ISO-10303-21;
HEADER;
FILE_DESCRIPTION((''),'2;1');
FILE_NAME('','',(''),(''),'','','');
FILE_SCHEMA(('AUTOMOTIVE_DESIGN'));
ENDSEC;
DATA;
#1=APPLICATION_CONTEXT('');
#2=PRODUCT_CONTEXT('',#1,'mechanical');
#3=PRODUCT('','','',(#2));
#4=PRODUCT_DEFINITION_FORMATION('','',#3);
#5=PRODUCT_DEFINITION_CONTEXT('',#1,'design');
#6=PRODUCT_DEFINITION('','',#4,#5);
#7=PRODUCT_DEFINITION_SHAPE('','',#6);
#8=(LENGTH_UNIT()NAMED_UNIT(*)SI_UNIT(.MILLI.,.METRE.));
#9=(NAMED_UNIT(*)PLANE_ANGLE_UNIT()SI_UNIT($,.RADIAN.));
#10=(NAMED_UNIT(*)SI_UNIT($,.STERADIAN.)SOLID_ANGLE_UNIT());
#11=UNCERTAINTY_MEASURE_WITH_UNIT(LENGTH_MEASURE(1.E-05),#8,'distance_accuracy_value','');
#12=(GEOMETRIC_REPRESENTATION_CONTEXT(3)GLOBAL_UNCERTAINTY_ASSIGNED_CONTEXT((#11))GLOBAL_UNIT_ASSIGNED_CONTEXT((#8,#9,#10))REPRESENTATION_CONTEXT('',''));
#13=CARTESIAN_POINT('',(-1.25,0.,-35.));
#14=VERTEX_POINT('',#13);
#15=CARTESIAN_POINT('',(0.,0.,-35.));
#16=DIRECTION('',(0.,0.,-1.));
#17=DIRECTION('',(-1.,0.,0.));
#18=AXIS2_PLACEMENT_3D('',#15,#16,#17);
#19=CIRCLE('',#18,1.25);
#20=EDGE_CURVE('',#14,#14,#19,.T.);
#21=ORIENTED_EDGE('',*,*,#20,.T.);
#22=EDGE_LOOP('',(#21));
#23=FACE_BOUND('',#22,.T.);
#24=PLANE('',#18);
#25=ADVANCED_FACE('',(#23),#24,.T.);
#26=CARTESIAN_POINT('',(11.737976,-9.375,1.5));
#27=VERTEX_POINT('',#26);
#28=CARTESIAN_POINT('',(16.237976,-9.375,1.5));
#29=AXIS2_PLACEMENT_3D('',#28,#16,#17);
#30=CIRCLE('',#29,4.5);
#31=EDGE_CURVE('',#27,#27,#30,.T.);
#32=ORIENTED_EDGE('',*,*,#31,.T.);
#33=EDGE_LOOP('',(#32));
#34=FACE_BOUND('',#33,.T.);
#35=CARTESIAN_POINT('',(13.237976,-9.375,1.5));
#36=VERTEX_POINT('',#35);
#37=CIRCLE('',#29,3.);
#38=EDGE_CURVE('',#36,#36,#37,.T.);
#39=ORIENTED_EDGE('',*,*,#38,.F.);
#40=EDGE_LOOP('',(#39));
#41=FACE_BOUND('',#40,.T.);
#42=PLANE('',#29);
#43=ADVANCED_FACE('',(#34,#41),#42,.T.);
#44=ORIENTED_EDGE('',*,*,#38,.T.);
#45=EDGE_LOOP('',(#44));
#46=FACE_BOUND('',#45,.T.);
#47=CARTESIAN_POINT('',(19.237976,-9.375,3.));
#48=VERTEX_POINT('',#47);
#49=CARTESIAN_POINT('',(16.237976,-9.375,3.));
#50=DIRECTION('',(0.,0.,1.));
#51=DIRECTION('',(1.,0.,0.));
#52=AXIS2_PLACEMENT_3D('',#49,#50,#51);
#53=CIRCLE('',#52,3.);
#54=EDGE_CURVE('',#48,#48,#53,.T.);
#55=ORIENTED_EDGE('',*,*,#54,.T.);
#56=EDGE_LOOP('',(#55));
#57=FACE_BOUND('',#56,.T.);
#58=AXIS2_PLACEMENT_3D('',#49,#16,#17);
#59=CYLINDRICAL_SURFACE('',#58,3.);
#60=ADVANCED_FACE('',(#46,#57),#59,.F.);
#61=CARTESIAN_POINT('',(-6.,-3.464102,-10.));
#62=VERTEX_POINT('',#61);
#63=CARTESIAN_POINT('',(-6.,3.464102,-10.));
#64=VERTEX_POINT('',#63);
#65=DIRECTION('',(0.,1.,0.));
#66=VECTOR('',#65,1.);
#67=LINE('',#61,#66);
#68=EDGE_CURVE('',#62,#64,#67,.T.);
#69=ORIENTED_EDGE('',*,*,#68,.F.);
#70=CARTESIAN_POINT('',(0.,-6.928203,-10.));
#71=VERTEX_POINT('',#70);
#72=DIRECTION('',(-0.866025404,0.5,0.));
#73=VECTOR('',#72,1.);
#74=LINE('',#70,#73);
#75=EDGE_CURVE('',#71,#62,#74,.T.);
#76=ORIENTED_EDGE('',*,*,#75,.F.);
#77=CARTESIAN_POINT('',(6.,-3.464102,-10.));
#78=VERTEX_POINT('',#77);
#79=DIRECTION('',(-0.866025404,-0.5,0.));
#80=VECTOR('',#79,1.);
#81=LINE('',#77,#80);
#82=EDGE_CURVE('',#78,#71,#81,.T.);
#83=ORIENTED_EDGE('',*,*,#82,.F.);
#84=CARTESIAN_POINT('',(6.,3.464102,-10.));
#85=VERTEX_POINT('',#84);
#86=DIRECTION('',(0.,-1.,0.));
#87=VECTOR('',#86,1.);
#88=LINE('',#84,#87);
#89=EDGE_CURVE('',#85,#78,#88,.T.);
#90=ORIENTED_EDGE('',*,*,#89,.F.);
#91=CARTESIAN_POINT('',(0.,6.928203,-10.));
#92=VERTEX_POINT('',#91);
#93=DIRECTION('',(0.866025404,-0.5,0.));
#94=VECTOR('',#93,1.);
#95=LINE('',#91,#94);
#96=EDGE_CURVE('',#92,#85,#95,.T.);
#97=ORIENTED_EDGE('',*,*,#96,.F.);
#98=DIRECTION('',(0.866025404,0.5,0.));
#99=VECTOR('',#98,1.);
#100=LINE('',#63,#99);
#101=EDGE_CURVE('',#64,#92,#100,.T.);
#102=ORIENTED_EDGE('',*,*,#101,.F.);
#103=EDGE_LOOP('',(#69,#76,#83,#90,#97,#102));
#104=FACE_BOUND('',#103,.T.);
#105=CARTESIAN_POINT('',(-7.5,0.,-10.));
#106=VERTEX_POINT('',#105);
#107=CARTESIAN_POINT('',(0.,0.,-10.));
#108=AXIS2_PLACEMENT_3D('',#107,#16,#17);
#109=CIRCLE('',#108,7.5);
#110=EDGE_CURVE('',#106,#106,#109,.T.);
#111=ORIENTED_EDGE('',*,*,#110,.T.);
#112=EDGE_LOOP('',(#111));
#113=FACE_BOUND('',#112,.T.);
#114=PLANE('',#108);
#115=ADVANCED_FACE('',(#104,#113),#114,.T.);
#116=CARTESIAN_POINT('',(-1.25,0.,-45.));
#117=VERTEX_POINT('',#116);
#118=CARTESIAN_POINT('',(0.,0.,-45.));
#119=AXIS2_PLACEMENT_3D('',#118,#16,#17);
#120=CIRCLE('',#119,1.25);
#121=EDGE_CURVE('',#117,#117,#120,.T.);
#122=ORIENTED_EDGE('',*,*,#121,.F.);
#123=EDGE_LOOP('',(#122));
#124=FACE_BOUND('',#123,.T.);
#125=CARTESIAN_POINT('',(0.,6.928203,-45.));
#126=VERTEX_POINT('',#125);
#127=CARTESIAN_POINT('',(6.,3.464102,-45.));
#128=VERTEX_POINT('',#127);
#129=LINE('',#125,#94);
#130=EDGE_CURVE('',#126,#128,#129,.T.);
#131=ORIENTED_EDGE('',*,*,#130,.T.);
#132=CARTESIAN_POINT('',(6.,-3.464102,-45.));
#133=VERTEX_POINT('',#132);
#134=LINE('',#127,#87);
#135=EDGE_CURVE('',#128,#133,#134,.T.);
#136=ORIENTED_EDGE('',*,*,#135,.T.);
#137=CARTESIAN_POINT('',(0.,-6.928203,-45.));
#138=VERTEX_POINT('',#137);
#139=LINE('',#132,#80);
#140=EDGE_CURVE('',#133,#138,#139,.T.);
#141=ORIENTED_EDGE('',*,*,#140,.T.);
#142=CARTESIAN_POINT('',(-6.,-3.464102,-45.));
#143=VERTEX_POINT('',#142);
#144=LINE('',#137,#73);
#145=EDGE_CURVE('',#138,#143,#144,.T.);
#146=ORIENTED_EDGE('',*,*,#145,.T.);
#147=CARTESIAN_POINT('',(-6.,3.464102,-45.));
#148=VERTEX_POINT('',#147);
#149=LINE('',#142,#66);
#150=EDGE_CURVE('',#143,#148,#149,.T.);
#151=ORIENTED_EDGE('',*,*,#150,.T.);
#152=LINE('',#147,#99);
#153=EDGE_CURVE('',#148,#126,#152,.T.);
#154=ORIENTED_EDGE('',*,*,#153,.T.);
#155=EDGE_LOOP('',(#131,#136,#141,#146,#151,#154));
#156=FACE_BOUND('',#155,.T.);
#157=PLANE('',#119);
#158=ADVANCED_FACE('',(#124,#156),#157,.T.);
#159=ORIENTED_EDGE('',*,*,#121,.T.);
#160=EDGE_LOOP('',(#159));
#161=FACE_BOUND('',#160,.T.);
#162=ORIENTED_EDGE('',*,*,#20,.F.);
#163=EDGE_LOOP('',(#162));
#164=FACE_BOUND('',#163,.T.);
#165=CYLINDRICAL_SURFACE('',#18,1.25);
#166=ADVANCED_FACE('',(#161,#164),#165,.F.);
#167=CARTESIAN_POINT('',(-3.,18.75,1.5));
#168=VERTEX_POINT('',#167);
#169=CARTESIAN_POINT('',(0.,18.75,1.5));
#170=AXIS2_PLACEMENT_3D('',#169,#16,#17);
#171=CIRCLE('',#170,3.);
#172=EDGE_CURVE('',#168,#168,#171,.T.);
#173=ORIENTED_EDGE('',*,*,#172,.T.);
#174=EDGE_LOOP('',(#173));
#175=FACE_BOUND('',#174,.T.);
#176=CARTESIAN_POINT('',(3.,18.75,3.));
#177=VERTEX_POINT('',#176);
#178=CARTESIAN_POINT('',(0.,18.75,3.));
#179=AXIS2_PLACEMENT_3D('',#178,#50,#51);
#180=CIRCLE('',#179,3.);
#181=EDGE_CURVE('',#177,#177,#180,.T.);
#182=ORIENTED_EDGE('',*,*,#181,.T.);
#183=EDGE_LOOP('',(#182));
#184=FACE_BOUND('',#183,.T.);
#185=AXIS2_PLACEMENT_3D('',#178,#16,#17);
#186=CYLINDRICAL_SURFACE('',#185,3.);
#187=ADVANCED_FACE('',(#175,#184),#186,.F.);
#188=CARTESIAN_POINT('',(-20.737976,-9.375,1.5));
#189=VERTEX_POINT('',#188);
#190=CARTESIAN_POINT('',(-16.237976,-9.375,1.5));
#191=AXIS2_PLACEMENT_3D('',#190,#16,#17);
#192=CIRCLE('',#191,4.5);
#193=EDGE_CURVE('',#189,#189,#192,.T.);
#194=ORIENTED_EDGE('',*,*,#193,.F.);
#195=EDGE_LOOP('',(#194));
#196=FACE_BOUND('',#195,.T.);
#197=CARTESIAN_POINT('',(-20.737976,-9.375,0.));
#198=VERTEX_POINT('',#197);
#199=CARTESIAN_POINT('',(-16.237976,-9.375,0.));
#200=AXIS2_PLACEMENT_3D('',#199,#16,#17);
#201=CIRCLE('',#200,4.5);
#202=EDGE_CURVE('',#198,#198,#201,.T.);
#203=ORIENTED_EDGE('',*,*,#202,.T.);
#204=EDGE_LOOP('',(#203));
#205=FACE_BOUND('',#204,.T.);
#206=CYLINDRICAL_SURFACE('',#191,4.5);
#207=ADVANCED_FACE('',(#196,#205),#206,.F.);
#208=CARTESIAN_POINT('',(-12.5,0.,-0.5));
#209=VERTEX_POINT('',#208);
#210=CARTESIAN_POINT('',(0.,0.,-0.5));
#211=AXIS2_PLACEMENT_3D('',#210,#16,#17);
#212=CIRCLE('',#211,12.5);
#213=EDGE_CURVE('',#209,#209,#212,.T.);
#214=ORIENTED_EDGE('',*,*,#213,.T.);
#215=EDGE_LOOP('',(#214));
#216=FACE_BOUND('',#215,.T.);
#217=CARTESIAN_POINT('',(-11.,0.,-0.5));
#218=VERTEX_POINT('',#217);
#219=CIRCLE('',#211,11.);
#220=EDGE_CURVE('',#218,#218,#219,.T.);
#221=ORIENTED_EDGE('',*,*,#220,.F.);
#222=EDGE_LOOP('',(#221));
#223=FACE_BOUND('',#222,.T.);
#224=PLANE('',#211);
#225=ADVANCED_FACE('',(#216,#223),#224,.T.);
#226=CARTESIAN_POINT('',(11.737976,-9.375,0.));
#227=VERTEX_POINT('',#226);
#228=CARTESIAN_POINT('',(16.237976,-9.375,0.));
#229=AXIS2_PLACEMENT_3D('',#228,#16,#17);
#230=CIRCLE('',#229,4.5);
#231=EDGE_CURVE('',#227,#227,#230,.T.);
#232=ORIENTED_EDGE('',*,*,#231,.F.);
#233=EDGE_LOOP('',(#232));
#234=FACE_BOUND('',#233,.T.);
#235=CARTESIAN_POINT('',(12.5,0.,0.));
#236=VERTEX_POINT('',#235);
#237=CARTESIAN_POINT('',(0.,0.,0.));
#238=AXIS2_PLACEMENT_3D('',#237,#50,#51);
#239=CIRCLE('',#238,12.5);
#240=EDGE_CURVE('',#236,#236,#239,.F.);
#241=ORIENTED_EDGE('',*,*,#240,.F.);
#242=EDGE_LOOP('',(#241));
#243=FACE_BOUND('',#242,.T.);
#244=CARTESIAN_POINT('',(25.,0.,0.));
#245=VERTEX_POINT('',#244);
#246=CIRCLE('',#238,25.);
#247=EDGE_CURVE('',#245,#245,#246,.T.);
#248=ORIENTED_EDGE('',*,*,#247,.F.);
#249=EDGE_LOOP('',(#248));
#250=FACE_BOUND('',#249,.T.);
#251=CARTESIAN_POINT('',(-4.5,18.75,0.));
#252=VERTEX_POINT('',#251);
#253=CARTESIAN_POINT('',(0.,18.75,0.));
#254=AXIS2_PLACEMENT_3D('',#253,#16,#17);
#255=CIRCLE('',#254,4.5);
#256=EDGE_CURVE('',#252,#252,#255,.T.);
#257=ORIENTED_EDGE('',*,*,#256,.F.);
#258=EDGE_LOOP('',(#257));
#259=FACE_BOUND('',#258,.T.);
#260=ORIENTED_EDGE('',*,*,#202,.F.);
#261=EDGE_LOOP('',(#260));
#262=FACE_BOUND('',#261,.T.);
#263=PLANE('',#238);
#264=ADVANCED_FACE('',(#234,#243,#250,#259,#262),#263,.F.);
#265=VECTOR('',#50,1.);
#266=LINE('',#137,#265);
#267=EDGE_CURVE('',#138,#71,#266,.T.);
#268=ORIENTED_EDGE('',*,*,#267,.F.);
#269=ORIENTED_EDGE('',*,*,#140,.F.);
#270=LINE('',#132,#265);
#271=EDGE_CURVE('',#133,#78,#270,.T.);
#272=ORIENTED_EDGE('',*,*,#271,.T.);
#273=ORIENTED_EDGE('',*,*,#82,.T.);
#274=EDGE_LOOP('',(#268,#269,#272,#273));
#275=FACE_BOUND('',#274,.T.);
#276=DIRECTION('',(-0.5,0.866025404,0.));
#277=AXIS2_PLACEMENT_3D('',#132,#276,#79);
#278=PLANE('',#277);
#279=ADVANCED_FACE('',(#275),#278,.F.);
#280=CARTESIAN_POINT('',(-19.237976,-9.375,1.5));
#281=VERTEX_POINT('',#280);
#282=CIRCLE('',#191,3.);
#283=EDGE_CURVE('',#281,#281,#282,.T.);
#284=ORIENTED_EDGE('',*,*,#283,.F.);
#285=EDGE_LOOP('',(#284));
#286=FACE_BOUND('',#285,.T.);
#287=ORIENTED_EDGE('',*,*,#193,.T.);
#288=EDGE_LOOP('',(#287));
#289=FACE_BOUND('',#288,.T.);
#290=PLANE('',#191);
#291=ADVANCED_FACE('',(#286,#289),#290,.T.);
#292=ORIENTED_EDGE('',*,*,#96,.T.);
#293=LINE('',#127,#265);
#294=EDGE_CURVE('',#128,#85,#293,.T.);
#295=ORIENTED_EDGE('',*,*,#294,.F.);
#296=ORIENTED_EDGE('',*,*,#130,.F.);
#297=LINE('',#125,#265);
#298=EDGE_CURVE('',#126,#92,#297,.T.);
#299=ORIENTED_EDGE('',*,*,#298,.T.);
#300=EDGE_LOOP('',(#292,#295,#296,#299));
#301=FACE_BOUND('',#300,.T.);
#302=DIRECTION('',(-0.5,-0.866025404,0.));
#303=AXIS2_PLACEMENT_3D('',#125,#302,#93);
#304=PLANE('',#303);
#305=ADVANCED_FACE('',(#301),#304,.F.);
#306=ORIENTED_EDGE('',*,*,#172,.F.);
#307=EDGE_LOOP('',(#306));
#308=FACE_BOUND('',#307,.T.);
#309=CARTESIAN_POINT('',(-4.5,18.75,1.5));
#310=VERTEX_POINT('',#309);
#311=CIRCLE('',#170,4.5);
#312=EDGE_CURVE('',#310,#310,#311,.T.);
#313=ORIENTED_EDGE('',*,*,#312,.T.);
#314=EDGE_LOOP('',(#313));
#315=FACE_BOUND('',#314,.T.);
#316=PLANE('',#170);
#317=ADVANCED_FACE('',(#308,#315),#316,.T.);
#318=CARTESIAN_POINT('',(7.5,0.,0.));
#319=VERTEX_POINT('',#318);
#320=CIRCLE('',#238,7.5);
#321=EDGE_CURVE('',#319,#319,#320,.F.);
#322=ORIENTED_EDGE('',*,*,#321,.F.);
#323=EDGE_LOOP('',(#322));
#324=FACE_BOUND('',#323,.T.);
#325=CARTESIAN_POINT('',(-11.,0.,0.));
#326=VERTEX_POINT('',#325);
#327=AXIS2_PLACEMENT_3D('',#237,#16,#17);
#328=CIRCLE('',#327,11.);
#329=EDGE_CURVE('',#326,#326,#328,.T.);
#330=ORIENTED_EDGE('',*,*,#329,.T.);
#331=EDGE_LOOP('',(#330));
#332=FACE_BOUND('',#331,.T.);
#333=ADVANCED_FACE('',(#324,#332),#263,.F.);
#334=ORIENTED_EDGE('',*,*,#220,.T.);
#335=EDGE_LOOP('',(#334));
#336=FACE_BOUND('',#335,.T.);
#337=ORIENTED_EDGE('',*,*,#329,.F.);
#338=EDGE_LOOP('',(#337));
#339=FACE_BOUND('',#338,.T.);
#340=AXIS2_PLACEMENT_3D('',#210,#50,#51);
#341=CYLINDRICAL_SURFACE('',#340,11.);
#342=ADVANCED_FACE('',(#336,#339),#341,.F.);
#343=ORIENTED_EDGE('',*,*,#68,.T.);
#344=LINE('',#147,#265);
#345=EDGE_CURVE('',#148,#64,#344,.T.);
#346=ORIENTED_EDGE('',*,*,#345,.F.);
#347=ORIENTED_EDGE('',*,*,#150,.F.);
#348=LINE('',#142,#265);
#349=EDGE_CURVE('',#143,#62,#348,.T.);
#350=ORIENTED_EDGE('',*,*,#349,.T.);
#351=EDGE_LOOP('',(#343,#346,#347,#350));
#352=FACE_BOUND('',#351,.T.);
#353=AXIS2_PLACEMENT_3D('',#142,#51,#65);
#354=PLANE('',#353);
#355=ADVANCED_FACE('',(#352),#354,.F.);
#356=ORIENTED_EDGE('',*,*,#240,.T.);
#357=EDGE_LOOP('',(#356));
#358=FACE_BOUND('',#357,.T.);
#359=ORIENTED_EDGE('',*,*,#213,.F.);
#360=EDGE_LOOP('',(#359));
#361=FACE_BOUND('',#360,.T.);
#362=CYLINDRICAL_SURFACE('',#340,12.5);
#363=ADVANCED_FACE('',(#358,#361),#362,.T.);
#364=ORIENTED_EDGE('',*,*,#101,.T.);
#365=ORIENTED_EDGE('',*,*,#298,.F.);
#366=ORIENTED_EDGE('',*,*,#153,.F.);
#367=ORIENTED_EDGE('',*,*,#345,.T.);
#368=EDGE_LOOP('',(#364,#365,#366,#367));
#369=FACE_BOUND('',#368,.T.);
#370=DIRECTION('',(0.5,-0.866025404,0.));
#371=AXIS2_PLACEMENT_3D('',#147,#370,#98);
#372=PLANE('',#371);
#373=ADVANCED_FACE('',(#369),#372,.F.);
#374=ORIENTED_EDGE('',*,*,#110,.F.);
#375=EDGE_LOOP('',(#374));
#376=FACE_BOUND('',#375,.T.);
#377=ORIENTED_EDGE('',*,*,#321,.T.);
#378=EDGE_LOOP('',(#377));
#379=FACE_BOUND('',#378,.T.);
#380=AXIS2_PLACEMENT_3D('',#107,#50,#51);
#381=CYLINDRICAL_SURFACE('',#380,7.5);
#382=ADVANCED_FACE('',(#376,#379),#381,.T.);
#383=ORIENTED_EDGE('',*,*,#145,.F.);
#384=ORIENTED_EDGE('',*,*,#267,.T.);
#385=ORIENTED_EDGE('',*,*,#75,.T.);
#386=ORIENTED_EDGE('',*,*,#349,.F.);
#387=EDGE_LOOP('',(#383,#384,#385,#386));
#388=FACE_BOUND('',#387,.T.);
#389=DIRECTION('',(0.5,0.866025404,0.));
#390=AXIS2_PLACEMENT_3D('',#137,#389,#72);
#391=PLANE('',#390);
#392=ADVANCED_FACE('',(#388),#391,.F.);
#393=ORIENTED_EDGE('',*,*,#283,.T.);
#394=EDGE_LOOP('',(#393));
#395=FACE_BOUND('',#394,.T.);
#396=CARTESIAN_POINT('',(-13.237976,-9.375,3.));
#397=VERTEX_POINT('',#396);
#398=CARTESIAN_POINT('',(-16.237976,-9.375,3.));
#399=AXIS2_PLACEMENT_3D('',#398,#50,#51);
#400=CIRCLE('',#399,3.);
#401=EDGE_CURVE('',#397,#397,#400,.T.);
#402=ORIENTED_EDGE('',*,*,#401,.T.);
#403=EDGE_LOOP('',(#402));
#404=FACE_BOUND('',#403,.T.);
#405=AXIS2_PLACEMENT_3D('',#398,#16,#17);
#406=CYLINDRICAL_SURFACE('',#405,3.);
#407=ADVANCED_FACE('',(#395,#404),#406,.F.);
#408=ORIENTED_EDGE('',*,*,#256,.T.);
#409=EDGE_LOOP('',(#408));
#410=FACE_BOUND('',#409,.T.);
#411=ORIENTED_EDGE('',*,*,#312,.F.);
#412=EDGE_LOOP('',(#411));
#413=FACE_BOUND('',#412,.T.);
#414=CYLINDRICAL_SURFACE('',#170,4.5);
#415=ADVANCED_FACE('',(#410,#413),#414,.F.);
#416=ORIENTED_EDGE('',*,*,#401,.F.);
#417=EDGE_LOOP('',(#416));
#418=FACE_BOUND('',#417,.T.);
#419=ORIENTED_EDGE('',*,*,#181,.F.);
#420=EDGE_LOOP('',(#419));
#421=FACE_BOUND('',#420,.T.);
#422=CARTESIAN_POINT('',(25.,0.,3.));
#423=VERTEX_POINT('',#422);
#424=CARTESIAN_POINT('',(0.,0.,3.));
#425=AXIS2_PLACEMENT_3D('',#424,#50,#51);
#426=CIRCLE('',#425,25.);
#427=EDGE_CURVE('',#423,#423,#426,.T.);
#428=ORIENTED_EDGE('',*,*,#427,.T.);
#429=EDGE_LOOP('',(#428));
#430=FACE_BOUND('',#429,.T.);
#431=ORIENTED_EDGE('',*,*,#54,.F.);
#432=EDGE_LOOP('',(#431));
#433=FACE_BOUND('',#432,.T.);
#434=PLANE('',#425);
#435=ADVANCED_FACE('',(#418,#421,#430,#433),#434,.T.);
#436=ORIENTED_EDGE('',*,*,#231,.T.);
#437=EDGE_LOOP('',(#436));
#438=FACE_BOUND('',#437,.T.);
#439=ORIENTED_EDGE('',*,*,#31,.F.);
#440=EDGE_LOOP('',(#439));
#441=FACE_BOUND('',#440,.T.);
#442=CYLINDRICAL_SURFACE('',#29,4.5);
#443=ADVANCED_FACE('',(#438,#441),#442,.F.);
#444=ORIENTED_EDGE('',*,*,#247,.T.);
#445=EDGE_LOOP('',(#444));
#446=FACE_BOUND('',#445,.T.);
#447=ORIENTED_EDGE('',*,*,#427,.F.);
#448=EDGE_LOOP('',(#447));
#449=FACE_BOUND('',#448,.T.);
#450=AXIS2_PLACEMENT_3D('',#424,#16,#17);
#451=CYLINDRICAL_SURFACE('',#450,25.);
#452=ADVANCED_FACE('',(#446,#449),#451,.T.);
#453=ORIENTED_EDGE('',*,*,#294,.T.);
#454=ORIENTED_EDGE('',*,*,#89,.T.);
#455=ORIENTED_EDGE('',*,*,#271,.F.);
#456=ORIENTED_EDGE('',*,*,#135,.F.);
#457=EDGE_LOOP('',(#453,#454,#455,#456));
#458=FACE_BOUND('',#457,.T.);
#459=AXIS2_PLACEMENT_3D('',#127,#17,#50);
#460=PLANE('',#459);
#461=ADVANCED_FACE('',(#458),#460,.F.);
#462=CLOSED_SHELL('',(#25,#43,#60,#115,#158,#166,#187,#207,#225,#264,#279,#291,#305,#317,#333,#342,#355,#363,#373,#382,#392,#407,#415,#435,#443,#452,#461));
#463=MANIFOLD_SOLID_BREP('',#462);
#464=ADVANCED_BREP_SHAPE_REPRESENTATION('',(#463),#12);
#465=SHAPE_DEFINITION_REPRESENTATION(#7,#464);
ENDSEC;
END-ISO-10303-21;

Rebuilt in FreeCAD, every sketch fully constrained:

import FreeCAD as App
import Part
import Sketcher

V = App.Vector
Q = App.Units.Quantity


def add_polygon(sketch, points):
    """Adds a closed chain of lines whose ends are joined by coincident constraints."""
    first, n = sketch.GeometryCount, len(points)
    for a, b in zip(points, points[1:] + points[:1]):
        sketch.addGeometry(Part.LineSegment(App.Vector(*a, 0), App.Vector(*b, 0)), False)
    for i in range(n):
        sketch.addConstraint(Sketcher.Constraint("Coincident", first + i, 2, first + (i + 1) % n, 1))

doc = App.newDocument("Part")
body = doc.addObject("PartDesign::Body", "Body")

sketch1 = body.newObject("Sketcher::SketchObject", "Sketch")
sketch1.AttachmentSupport = (doc.getObject("XY_Plane"), [""])
sketch1.MapMode = "FlatFace"
sketch1.addGeometry([
    Part.Circle(V(0, 0, 0), V(0, 0, 1), 25),
    Part.Circle(V(-16.2, -9.4, 0), V(0, 0, 1), 3),
    Part.Circle(V(16.2, -9.4, 0), V(0, 0, 1), 3),
    Part.Circle(V(0, 18.8, 0), V(0, 0, 1), 3),
], False)
sketch1.addConstraint([
    Sketcher.Constraint("Coincident", 0, 3, -1, 1),
    Sketcher.Constraint("Equal", 1, 2),
    Sketcher.Constraint("Equal", 2, 3),
    Sketcher.Constraint("Symmetric", 1, 3, 2, 3, -2),
    Sketcher.Constraint("PointOnObject", 3, 3, -2),
    Sketcher.Constraint("Diameter", 0, Q("50 mm")),
    Sketcher.Constraint("Diameter", 1, Q("6 mm")),
    Sketcher.Constraint("DistanceY", -1, 1, 3, 3, Q("18.75 mm")),
    Sketcher.Constraint("DistanceY", 1, 3, -1, 1, Q("9.375 mm")),
    Sketcher.Constraint("DistanceX", 1, 3, -1, 1, Q("16.237976 mm")),
])
pad1 = body.newObject("PartDesign::Pad", "Pad")
pad1.Profile = sketch1
pad1.Length = 3

sketch2 = body.newObject("Sketcher::SketchObject", "Sketch001")
sketch2.AttachmentSupport = (doc.getObject("XY_Plane"), [""])
sketch2.MapMode = "FlatFace"
sketch2.addGeometry(Part.Circle(V(0, 0, 0), V(0, 0, 1), 8), False)
sketch2.addConstraint([
    Sketcher.Constraint("Coincident", 0, 3, -1, 1),
    Sketcher.Constraint("Diameter", 0, Q("15 mm")),
])
pad2 = body.newObject("PartDesign::Pad", "Pad001")
pad2.Profile = sketch2
pad2.Length = 10
pad2.Reversed = True

sketch3 = body.newObject("Sketcher::SketchObject", "Sketch002")
sketch3.AttachmentSupport = (doc.getObject("XY_Plane"), [""])
sketch3.MapMode = "FlatFace"
sketch3.AttachmentOffset = App.Placement(V(0, 0, -10), App.Rotation())
add_polygon(sketch3, [(0, -7), (-6, -3), (-6, 3), (0, 7), (6, 3), (6, -3)])
sketch3.addConstraint([
    Sketcher.Constraint("Vertical", 1),
    Sketcher.Constraint("Vertical", 4),
    Sketcher.Constraint("Symmetric", 0, 2, 3, 2, -1, 1),
    Sketcher.Constraint("Symmetric", 2, 2, 5, 2, -1, 1),
    Sketcher.Constraint("PointOnObject", 2, 2, -2),
    Sketcher.Constraint("Parallel", 2, 5),
    Sketcher.Constraint("Horizontal", 1, 2, 3, 2),
    Sketcher.Constraint("Angle", 0, Q("150 deg")),
    Sketcher.Constraint("DistanceX", 0, 2, -1, 1, Q("6 mm")),
    Sketcher.Constraint("DistanceY", 0, 2, -1, 1, Q("3.464102 mm")),
])
pad3 = body.newObject("PartDesign::Pad", "Pad002")
pad3.Profile = sketch3
pad3.Length = 35
pad3.Reversed = True

sketch4 = body.newObject("Sketcher::SketchObject", "Sketch003")
sketch4.AttachmentSupport = (doc.getObject("XY_Plane"), [""])
sketch4.MapMode = "FlatFace"
sketch4.AttachmentOffset = App.Placement(V(0, 0, -45), App.Rotation())
sketch4.addGeometry(Part.Circle(V(0, 0, 0), V(0, 0, 1), 1.2), False)
sketch4.addConstraint([
    Sketcher.Constraint("Coincident", 0, 3, -1, 1),
    Sketcher.Constraint("Diameter", 0, Q("2.5 mm")),
])
pocket1 = body.newObject("PartDesign::Pocket", "Pocket")
pocket1.Profile = sketch4
pocket1.Length = 10
pocket1.Reversed = True

sketch5 = body.newObject("Sketcher::SketchObject", "Sketch004")
sketch5.AttachmentSupport = (doc.getObject("XY_Plane"), [""])
sketch5.MapMode = "FlatFace"
sketch5.addGeometry([
    Part.Circle(V(0, 0, 0), V(0, 0, 1), 12),
    Part.Circle(V(0, 0, 0), V(0, 0, 1), 11),
], False)
sketch5.addConstraint([
    Sketcher.Constraint("Coincident", 0, 3, -1, 1),
    Sketcher.Constraint("Coincident", 1, 3, -1, 1),
    Sketcher.Constraint("Diameter", 0, Q("25 mm")),
    Sketcher.Constraint("Diameter", 1, Q("22 mm")),
])
pad4 = body.newObject("PartDesign::Pad", "Pad003")
pad4.Profile = sketch5
pad4.Length = 0.5
pad4.Reversed = True

sketch6 = body.newObject("Sketcher::SketchObject", "Sketch005")
sketch6.AttachmentSupport = (doc.getObject("XY_Plane"), [""])
sketch6.MapMode = "FlatFace"
sketch6.addGeometry([
    Part.Circle(V(0, 18.8, 0), V(0, 0, 1), 4.5),
    Part.Circle(V(-16.2, -9.4, 0), V(0, 0, 1), 4.5),
    Part.Circle(V(16.2, -9.4, 0), V(0, 0, 1), 4.5),
], False)
sketch6.addConstraint([
    Sketcher.Constraint("Equal", 0, 1),
    Sketcher.Constraint("Equal", 1, 2),
    Sketcher.Constraint("Symmetric", 1, 3, 2, 3, -2),
    Sketcher.Constraint("PointOnObject", 0, 3, -2),
    Sketcher.Constraint("Diameter", 0, Q("9 mm")),
    Sketcher.Constraint("DistanceY", -1, 1, 0, 3, Q("18.75 mm")),
    Sketcher.Constraint("DistanceY", 1, 3, -1, 1, Q("9.375 mm")),
    Sketcher.Constraint("DistanceX", 1, 3, -1, 1, Q("16.237976 mm")),
])
pocket2 = body.newObject("PartDesign::Pocket", "Pocket001")
pocket2.Profile = sketch6
pocket2.Length = 1.5
pocket2.Reversed = True

doc.recompute()
